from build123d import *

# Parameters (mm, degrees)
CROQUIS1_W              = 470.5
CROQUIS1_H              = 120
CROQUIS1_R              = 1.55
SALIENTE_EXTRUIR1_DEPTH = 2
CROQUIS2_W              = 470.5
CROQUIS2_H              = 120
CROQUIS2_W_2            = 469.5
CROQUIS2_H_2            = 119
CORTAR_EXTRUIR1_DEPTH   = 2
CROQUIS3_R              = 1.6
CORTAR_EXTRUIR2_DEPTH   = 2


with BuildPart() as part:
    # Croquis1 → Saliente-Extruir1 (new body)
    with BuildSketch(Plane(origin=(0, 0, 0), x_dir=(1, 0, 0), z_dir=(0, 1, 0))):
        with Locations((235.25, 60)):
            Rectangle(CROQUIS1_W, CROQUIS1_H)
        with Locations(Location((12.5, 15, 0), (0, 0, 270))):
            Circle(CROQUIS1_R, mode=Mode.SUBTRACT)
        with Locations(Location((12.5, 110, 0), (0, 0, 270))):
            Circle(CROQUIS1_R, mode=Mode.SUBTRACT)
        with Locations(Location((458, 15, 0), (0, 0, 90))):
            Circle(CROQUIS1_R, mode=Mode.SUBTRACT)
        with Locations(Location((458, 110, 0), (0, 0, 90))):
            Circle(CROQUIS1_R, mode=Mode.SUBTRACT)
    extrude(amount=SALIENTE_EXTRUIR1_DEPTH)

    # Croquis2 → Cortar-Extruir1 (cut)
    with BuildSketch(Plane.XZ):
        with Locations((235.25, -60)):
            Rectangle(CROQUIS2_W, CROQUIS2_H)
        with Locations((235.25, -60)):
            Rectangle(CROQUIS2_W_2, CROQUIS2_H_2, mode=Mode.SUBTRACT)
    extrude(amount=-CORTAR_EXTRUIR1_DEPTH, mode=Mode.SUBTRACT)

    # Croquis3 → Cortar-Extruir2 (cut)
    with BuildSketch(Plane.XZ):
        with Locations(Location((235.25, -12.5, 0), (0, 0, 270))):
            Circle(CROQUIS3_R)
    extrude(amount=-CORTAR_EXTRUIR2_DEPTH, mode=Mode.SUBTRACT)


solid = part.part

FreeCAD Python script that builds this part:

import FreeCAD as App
import Part
import Sketcher

V = App.Vector

doc = App.newDocument("Part")
body = doc.addObject("PartDesign::Body", "Body")

# Sketch on XZ plane
sketch1 = doc.addObject("Sketcher::SketchObject", "Sketch")
body.addObject(sketch1)
sketch1.AttachmentSupport = (doc.XZ_Plane, [""])
sketch1.MapMode = "FlatFace"
sketch1.addGeometry([
    Part.LineSegment(V(0, -120, 0), V(0, 0, 0)),  # 0
    Part.LineSegment(V(0, 0, 0), V(470.5, 0, 0)),  # 1
    Part.LineSegment(V(470.5, 0, 0), V(470.5, -120, 0)),  # 2
    Part.LineSegment(V(470.5, -120, 0), V(0, -120, 0)),  # 3
    Part.Circle(V(12.5, -15, 0), V(0, 0, 1), 1.55),  # 4
    Part.Circle(V(458, -15, 0), V(0, 0, 1), 1.55),  # 5
    Part.Circle(V(12.5, -110, 0), V(0, 0, 1), 1.55),  # 6
    Part.Circle(V(458, -110, 0), V(0, 0, 1), 1.55),  # 7
], False)
sketch1.addConstraint([
    Sketcher.Constraint("Coincident", 0, 2, 1, 1),
    Sketcher.Constraint("Coincident", 1, 2, 2, 1),
    Sketcher.Constraint("Coincident", 2, 2, 3, 1),
    Sketcher.Constraint("Coincident", 3, 2, 0, 1),
    Sketcher.Constraint("Vertical", 0),
    Sketcher.Constraint("Horizontal", 1),
    Sketcher.Constraint("Vertical", 2),
    Sketcher.Constraint("Horizontal", 3),
    Sketcher.Constraint("Coincident", 0, 2, -1, 1),
    Sketcher.Constraint("Equal", 4, 5),
    Sketcher.Constraint("Equal", 5, 6),
    Sketcher.Constraint("Equal", 6, 7),
    Sketcher.Constraint("Horizontal", 4, 3, 5, 3),
    Sketcher.Constraint("Horizontal", 6, 3, 7, 3),
    Sketcher.Constraint("Vertical", 4, 3, 6, 3),
    Sketcher.Constraint("Vertical", 5, 3, 7, 3),
    Sketcher.Constraint("Diameter", 4, 3.1),
    Sketcher.Constraint("DistanceY", 0, 1, 0, 2, 120.0),
    Sketcher.Constraint("DistanceX", 1, 1, 1, 2, 470.5),
    Sketcher.Constraint("DistanceY", 4, 3, -1, 1, 15.0),
    Sketcher.Constraint("DistanceX", -1, 1, 5, 3, 458.0),
    Sketcher.Constraint("DistanceY", 6, 3, -1, 1, 110.0),
    Sketcher.Constraint("DistanceX", 4, 3, 1, 2, 458.0),
])
pad1 = doc.addObject("PartDesign::Pad", "Pad")
body.addObject(pad1)
pad1.Profile = sketch1
pad1.Length = 2
pad1.Reversed = True

# Sketch on XZ plane
sketch2 = doc.addObject("Sketcher::SketchObject", "Sketch001")
body.addObject(sketch2)
sketch2.AttachmentSupport = (doc.XZ_Plane, [""])
sketch2.MapMode = "FlatFace"
sketch2.addGeometry([
    Part.LineSegment(V(0, 0, 0), V(0, -120, 0)),  # 0
    Part.LineSegment(V(0, -120, 0), V(470.5, -120, 0)),  # 1
    Part.LineSegment(V(470.5, -120, 0), V(470.5, 0, 0)),  # 2
    Part.LineSegment(V(470.5, 0, 0), V(0, 0, 0)),  # 3
    Part.LineSegment(V(470, -119.5, 0), V(0.5, -119.5, 0)),  # 4
    Part.LineSegment(V(0.5, -119.5, 0), V(0.5, -0.5, 0)),  # 5
    Part.LineSegment(V(0.5, -0.5, 0), V(470, -0.5, 0)),  # 6
    Part.LineSegment(V(470, -0.5, 0), V(470, -119.5, 0)),  # 7
], False)
sketch2.addConstraint([
    Sketcher.Constraint("Coincident", 0, 2, 1, 1),
    Sketcher.Constraint("Coincident", 1, 2, 2, 1),
    Sketcher.Constraint("Coincident", 2, 2, 3, 1),
    Sketcher.Constraint("Coincident", 3, 2, 0, 1),
    Sketcher.Constraint("Coincident", 4, 2, 5, 1),
    Sketcher.Constraint("Coincident", 5, 2, 6, 1),
    Sketcher.Constraint("Coincident", 6, 2, 7, 1),
    Sketcher.Constraint("Coincident", 7, 2, 4, 1),
    Sketcher.Constraint("Vertical", 0),
    Sketcher.Constraint("Horizontal", 1),
    Sketcher.Constraint("Vertical", 2),
    Sketcher.Constraint("Horizontal", 3),
    Sketcher.Constraint("Horizontal", 4),
    Sketcher.Constraint("Vertical", 5),
    Sketcher.Constraint("Horizontal", 6),
    Sketcher.Constraint("Vertical", 7),
    Sketcher.Constraint("Coincident", 3, 2, -1, 1),
    Sketcher.Constraint("DistanceY", 0, 2, 0, 1, 120.0),
    Sketcher.Constraint("DistanceY", 5, 1, 5, 2, 119.0),
    Sketcher.Constraint("DistanceX", 1, 1, 1, 2, 470.5),
    Sketcher.Constraint("DistanceX", 4, 2, 4, 1, 469.5),
    Sketcher.Constraint("DistanceX", -1, 1, 6, 2, 470.0),
    Sketcher.Constraint("DistanceY", 4, 2, -1, 1, 119.5),
])
pocket1 = doc.addObject("PartDesign::Pocket", "Pocket")
body.addObject(pocket1)
pocket1.Profile = sketch2
pocket1.Length = 2

# Sketch on XZ plane
sketch3 = doc.addObject("Sketcher::SketchObject", "Sketch002")
body.addObject(sketch3)
sketch3.AttachmentSupport = (doc.XZ_Plane, [""])
sketch3.MapMode = "FlatFace"
sketch3.addGeometry(Part.Circle(V(235.25, -12.5, 0), V(0, 0, 1), 1.6), False)
sketch3.addConstraint([
    Sketcher.Constraint("Diameter", 0, 3.2),
    Sketcher.Constraint("DistanceY", 0, 3, -1, 1, 12.5),
    Sketcher.Constraint("DistanceX", -1, 1, 0, 3, 235.25),
])
pocket2 = doc.addObject("PartDesign::Pocket", "Pocket001")
body.addObject(pocket2)
pocket2.Profile = sketch3
pocket2.Length = 2

doc.recompute()
